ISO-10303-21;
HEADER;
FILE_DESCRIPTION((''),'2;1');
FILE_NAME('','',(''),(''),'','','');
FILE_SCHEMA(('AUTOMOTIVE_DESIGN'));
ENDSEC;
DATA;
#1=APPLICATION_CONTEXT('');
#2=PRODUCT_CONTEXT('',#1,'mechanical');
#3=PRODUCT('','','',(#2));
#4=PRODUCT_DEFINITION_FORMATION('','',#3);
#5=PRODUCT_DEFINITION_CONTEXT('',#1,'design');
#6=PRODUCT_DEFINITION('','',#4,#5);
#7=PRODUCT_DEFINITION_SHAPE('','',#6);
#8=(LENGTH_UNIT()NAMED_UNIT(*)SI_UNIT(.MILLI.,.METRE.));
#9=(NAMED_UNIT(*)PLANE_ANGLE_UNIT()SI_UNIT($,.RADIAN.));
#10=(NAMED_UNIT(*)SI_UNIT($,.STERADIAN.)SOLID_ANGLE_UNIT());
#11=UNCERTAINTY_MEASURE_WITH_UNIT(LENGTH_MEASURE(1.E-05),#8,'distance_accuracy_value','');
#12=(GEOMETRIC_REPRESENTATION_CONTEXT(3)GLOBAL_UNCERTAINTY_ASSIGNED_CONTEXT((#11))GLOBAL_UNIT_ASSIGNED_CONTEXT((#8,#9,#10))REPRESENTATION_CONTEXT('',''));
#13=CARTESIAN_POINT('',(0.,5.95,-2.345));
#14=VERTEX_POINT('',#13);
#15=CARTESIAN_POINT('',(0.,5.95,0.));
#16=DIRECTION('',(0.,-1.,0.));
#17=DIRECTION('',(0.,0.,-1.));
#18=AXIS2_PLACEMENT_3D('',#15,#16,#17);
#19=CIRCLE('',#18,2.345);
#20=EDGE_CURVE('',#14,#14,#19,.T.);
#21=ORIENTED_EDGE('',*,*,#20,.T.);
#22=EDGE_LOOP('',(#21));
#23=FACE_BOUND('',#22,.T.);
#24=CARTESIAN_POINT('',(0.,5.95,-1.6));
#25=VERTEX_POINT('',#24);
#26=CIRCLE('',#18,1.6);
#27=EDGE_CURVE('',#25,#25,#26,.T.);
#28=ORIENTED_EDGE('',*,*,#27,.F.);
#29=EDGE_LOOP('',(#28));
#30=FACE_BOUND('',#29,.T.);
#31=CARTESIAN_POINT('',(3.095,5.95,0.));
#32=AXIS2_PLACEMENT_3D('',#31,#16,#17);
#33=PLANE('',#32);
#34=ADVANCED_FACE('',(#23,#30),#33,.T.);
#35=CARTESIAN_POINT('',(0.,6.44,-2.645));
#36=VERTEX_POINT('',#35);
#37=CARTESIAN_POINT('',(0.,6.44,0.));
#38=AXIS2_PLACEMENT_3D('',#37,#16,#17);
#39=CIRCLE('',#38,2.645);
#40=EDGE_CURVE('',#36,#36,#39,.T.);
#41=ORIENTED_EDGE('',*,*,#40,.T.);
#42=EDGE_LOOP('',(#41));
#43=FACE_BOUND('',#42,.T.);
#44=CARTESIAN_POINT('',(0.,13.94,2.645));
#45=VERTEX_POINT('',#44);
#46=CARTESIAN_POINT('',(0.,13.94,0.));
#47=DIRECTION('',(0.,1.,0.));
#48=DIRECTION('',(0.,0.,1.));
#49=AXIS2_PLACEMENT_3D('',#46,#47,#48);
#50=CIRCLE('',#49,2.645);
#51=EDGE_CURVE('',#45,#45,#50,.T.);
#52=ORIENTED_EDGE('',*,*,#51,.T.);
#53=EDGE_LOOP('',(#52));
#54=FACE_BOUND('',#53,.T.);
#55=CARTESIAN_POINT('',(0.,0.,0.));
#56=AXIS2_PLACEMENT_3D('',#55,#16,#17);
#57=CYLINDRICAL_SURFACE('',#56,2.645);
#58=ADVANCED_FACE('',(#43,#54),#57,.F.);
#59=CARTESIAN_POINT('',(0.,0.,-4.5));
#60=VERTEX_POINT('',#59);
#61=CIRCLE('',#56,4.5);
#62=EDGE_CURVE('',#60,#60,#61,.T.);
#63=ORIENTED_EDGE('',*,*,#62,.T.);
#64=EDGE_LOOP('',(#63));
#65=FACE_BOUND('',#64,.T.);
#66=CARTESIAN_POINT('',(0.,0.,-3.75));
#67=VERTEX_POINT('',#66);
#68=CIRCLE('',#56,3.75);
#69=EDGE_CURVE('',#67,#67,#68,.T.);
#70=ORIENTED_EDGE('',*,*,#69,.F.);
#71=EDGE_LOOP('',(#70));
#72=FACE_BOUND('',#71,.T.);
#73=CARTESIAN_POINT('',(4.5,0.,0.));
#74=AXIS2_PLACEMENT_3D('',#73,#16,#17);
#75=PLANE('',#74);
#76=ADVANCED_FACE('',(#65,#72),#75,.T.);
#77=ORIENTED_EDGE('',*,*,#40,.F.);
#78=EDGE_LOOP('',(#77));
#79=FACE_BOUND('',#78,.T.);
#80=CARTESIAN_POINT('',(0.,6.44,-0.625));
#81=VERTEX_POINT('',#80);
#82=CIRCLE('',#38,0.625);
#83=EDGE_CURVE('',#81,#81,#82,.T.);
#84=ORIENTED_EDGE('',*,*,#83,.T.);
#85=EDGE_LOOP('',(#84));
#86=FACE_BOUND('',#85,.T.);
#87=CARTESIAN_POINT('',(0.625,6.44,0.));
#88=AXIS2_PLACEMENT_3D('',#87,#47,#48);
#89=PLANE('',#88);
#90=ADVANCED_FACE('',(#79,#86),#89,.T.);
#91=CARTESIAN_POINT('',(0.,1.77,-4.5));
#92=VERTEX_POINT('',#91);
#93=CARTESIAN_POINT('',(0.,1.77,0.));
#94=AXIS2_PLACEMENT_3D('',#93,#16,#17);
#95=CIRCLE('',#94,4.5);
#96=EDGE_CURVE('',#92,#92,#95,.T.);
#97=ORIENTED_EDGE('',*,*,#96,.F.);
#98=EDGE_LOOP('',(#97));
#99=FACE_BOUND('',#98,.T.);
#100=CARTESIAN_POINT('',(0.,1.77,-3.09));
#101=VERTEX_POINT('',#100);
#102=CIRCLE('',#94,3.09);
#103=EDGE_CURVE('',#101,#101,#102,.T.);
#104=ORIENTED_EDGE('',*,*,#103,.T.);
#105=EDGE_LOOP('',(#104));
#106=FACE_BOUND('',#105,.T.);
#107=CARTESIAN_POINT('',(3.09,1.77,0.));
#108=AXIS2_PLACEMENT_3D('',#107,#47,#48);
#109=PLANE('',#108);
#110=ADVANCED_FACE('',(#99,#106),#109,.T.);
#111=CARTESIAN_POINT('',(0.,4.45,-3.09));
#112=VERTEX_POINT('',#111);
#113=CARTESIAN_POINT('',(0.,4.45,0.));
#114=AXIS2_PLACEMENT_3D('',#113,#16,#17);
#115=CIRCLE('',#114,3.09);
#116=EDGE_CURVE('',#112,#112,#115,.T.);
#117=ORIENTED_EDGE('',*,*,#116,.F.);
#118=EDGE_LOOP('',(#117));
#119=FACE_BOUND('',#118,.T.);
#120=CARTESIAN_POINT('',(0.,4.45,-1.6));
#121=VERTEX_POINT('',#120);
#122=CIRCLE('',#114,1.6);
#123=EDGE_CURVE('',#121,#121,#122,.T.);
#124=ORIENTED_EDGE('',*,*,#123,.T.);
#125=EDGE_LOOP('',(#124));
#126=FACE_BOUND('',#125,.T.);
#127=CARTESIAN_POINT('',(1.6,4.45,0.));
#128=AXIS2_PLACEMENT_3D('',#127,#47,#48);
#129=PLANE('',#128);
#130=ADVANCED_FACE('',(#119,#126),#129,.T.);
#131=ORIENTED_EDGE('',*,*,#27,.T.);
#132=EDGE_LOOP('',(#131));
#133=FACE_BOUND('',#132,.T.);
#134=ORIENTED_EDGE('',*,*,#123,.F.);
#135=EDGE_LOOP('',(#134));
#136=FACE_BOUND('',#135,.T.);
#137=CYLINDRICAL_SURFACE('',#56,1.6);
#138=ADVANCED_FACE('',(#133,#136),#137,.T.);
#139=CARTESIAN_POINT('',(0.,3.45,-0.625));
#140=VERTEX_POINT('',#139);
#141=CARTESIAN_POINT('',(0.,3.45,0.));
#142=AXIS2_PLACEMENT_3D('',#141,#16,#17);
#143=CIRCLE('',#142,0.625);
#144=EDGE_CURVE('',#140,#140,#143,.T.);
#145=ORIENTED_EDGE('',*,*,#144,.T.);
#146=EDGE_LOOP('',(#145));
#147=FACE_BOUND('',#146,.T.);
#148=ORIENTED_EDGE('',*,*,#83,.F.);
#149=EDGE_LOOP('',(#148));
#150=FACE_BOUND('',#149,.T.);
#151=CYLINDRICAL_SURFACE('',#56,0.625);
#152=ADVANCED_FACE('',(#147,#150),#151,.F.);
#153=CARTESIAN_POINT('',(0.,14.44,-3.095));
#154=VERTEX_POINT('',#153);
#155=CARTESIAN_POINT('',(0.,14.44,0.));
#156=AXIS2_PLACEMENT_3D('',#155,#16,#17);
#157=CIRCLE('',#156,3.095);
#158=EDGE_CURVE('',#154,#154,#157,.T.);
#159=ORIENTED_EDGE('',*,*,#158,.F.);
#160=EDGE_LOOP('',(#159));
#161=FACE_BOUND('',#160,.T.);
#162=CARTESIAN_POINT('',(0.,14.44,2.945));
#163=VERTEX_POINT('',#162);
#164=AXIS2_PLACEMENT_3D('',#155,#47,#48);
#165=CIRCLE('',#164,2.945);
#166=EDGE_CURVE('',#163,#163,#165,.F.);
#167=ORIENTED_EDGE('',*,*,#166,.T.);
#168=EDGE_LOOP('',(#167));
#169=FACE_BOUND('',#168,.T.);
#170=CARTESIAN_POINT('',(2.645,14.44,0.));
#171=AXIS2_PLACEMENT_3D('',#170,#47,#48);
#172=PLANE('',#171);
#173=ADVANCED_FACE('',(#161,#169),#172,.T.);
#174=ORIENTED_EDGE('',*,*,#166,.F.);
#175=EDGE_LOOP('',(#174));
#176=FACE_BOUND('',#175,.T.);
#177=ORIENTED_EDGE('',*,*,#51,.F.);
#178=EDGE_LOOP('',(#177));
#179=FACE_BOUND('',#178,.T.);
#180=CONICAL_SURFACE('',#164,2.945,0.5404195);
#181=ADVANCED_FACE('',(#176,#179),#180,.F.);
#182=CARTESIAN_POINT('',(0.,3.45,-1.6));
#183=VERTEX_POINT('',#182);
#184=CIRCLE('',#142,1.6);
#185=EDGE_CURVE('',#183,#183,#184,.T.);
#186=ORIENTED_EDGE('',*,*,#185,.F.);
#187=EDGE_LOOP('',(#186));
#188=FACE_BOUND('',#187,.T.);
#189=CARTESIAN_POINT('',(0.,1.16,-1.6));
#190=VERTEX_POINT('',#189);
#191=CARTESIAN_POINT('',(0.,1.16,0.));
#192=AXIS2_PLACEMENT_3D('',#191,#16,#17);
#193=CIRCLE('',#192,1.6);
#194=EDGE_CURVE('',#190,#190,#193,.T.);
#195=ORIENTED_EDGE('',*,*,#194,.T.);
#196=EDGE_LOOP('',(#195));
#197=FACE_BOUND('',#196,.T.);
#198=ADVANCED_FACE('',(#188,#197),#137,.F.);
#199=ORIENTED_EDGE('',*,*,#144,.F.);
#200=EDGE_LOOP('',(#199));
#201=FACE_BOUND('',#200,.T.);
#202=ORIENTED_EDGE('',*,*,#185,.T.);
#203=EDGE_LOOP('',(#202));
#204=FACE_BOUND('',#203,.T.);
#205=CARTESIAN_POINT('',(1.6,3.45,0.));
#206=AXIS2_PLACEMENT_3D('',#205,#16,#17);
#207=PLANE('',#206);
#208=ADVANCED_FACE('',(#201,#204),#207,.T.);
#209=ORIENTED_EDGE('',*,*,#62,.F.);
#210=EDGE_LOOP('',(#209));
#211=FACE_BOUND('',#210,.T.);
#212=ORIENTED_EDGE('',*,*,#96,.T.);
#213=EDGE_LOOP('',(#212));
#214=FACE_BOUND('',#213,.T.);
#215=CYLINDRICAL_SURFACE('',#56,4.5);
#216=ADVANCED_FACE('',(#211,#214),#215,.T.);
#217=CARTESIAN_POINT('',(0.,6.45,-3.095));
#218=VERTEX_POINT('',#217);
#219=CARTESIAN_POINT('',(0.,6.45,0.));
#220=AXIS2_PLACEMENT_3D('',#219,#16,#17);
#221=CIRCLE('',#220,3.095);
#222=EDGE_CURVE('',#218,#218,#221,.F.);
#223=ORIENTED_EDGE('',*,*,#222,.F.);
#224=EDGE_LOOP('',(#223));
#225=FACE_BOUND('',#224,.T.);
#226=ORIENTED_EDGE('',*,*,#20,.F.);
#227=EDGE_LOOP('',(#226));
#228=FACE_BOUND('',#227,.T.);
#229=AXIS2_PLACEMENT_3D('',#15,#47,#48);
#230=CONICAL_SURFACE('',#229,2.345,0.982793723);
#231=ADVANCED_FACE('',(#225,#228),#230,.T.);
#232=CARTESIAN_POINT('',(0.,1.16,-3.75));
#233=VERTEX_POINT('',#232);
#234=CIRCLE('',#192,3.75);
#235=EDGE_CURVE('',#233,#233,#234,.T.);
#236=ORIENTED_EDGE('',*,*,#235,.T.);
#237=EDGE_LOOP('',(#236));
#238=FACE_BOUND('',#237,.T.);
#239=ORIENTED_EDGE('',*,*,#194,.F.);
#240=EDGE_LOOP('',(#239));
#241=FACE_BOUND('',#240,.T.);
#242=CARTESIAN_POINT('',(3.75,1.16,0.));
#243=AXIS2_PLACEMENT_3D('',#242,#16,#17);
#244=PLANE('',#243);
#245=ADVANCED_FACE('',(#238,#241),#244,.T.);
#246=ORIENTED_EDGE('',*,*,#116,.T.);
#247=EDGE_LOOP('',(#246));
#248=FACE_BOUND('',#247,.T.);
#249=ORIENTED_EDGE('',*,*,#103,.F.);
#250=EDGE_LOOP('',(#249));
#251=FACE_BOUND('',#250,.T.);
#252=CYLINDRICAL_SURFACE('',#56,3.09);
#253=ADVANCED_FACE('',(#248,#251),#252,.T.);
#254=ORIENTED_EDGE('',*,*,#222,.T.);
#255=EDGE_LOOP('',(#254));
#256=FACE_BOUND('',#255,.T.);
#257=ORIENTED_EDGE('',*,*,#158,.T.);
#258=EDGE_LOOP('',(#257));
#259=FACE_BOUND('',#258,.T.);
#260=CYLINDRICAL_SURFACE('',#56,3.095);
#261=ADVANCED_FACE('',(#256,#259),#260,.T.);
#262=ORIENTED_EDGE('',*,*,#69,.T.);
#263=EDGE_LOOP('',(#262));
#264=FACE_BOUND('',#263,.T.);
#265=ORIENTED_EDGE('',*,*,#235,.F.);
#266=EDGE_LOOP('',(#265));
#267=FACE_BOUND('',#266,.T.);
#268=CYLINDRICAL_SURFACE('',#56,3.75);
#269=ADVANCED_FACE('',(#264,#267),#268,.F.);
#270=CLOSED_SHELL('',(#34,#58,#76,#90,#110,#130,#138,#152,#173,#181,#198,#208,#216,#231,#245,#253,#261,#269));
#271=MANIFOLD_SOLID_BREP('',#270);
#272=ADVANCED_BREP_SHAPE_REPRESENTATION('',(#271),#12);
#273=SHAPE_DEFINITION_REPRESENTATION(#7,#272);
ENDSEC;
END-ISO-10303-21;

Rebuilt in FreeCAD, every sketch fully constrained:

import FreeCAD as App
import Part
import Sketcher
from FreeCAD import Vector
Q = App.Units.Quantity


def edges_at(feature, points):
    """Names of the edges that pass closest to the given points."""
    edges = feature.Shape.Edges
    near = lambda p: min(range(len(edges)), key=lambda i: edges[i].distToShape(Part.Vertex(*p))[0])
    return sorted({f"Edge{near(p) + 1}" for p in points})

doc = App.newDocument("Part")
params = doc.addObject("Spreadsheet::Sheet", "Params")
for row, (alias, value) in enumerate([
    ("sketch1_height", "8 mm"),
    ("sketch1_height2", "1.5 mm"),
    ("sketch1_width", "0.75 mm"),
    ("sketch1_width2", "1.41 mm"),
    ("sketch1_width3", "1.49 mm"),
    ("revolution_angle", "360 deg"),
    ("chamfer_size", "0.5 mm"),
    ("chamfer_size2", "0.3 mm"),
    ("chamfer2_size", "0.5 mm"),
    ("chamfer2_size2", "0.75 mm"),
], start=1):
    params.set(f"A{row}", alias)
    params.set(f"B{row}", "=" + value)
    params.setAlias(f"B{row}", alias)

body = doc.addObject("PartDesign::Body", "Body")

# Sketch on XY plane
sketch1 = body.newObject("Sketcher::SketchObject", "Sketch")
sketch1.AttachmentSupport = (doc.getObject("XY_Plane"), [""])
sketch1.MapMode = "FlatFace"
sketch1.addGeometry([
    Part.LineSegment(Vector(3.75, 1.16, 0), Vector(3.75, 0, 0)),  # 0
    Part.LineSegment(Vector(3.75, 0, 0), Vector(4.5, 0, 0)),  # 1
    Part.LineSegment(Vector(4.5, 0, 0), Vector(4.5, 1.77, 0)),  # 2
    Part.LineSegment(Vector(4.5, 1.77, 0), Vector(3.09, 1.77, 0)),  # 3
    Part.LineSegment(Vector(3.09, 1.77, 0), Vector(3.09, 4.45, 0)),  # 4
    Part.LineSegment(Vector(3.09, 4.45, 0), Vector(1.6, 4.45, 0)),  # 5
    Part.LineSegment(Vector(1.6, 4.45, 0), Vector(1.6, 5.95, 0)),  # 6
    Part.LineSegment(Vector(1.6, 5.95, 0), Vector(3.095, 5.95, 0)),  # 7
    Part.LineSegment(Vector(3.095, 5.95, 0), Vector(3.095, 14.44, 0)),  # 8
    Part.LineSegment(Vector(3.095, 14.44, 0), Vector(2.645, 14.44, 0)),  # 9
    Part.LineSegment(Vector(2.645, 14.44, 0), Vector(2.645, 6.44, 0)),  # 10
    Part.LineSegment(Vector(2.645, 6.44, 0), Vector(0.625, 6.44, 0)),  # 11
    Part.LineSegment(Vector(0.625, 6.44, 0), Vector(0.625, 3.45, 0)),  # 12
    Part.LineSegment(Vector(0.625, 3.45, 0), Vector(1.6, 3.45, 0)),  # 13
    Part.LineSegment(Vector(1.6, 3.45, 0), Vector(1.6, 1.16, 0)),  # 14
    Part.LineSegment(Vector(1.6, 1.16, 0), Vector(3.75, 1.16, 0)),  # 15
], False)
sketch1.addConstraint([
    Sketcher.Constraint("Coincident", 0, 2, 1, 1),
    Sketcher.Constraint("Coincident", 1, 2, 2, 1),
    Sketcher.Constraint("Coincident", 2, 2, 3, 1),
    Sketcher.Constraint("Coincident", 3, 2, 4, 1),
    Sketcher.Constraint("Coincident", 4, 2, 5, 1),
    Sketcher.Constraint("Coincident", 5, 2, 6, 1),
    Sketcher.Constraint("Coincident", 6, 2, 7, 1),
    Sketcher.Constraint("Coincident", 7, 2, 8, 1),
    Sketcher.Constraint("Coincident", 8, 2, 9, 1),
    Sketcher.Constraint("Coincident", 9, 2, 10, 1),
    Sketcher.Constraint("Coincident", 10, 2, 11, 1),
    Sketcher.Constraint("Coincident", 11, 2, 12, 1),
    Sketcher.Constraint("Coincident", 12, 2, 13, 1),
    Sketcher.Constraint("Coincident", 13, 2, 14, 1),
    Sketcher.Constraint("Coincident", 14, 2, 15, 1),
    Sketcher.Constraint("Coincident", 15, 2, 0, 1),
    Sketcher.Constraint("Vertical", 0),
    Sketcher.Constraint("Horizontal", 1),
    Sketcher.Constraint("Vertical", 2),
    Sketcher.Constraint("Horizontal", 3),
    Sketcher.Constraint("Vertical", 4),
    Sketcher.Constraint("Horizontal", 5),
    Sketcher.Constraint("Vertical", 6),
    Sketcher.Constraint("Horizontal", 7),
    Sketcher.Constraint("Vertical", 8),
    Sketcher.Constraint("Horizontal", 9),
    Sketcher.Constraint("Vertical", 10),
    Sketcher.Constraint("Horizontal", 11),
    Sketcher.Constraint("Vertical", 12),
    Sketcher.Constraint("Horizontal", 13),
    Sketcher.Constraint("Vertical", 14),
    Sketcher.Constraint("Horizontal", 15),
    Sketcher.Constraint("PointOnObject", 0, 2, -1),
    Sketcher.Constraint("Vertical", 6, 2, 13, 2),
    Sketcher.Constraint("DistanceY", 10, 2, 10, 1, Q("8 mm")),
    Sketcher.Constraint("DistanceY", 6, 1, 6, 2, Q("1.5 mm")),
    Sketcher.Constraint("DistanceY", 12, 2, 5, 2, Q("1 mm")),
    Sketcher.Constraint("DistanceX", 1, 1, 1, 2, Q("0.75 mm")),
    Sketcher.Constraint("DistanceX", 3, 2, 3, 1, Q("1.41 mm")),
    Sketcher.Constraint("DistanceX", 5, 2, 5, 1, Q("1.49 mm")),
    Sketcher.Constraint("DistanceX", 9, 2, 9, 1, Q("0.45 mm")),
    Sketcher.Constraint("DistanceX", 11, 2, 11, 1, Q("2.02 mm")),
    Sketcher.Constraint("DistanceY", 0, 2, 0, 1, Q("1.16 mm")),
    Sketcher.Constraint("DistanceY", 2, 1, 2, 2, Q("1.77 mm")),
    Sketcher.Constraint("DistanceY", 4, 1, 4, 2, Q("2.68 mm")),
    Sketcher.Constraint("DistanceY", 8, 1, 8, 2, Q("8.49 mm")),
    Sketcher.Constraint("DistanceX", -1, 1, 1, 2, Q("4.5 mm")),
    Sketcher.Constraint("DistanceX", 7, 1, 7, 2, Q("1.495 mm")),
])
sketch1.setExpression("Constraints[34]", "Params.sketch1_height")
sketch1.setExpression("Constraints[35]", "Params.sketch1_height2")
sketch1.setExpression("Constraints[37]", "Params.sketch1_width")
sketch1.setExpression("Constraints[38]", "Params.sketch1_width2")
sketch1.setExpression("Constraints[39]", "Params.sketch1_width3")
revolution = body.newObject("PartDesign::Revolution", "Revolution")
revolution.Profile = sketch1
revolution.ReferenceAxis = (sketch1, ["V_Axis"])
revolution.setExpression("Angle", "Params.revolution_angle")
doc.recompute()

chamfer = body.newObject("PartDesign::Chamfer", "Chamfer")
chamfer.Base = (revolution, edges_at(revolution, [(-2.645, 14.44, 0)]))
chamfer.ChamferType = "Two distances"
chamfer.setExpression("Size", "Params.chamfer_size")
chamfer.setExpression("Size2", "Params.chamfer_size2")
chamfer.FlipDirection = True
doc.recompute()

chamfer2 = body.newObject("PartDesign::Chamfer", "Chamfer001")
chamfer2.Base = (chamfer, edges_at(chamfer, [(-3.095, 5.95, 0)]))
chamfer2.ChamferType = "Two distances"
chamfer2.setExpression("Size", "Params.chamfer2_size")
chamfer2.setExpression("Size2", "Params.chamfer2_size2")

doc.recompute()
